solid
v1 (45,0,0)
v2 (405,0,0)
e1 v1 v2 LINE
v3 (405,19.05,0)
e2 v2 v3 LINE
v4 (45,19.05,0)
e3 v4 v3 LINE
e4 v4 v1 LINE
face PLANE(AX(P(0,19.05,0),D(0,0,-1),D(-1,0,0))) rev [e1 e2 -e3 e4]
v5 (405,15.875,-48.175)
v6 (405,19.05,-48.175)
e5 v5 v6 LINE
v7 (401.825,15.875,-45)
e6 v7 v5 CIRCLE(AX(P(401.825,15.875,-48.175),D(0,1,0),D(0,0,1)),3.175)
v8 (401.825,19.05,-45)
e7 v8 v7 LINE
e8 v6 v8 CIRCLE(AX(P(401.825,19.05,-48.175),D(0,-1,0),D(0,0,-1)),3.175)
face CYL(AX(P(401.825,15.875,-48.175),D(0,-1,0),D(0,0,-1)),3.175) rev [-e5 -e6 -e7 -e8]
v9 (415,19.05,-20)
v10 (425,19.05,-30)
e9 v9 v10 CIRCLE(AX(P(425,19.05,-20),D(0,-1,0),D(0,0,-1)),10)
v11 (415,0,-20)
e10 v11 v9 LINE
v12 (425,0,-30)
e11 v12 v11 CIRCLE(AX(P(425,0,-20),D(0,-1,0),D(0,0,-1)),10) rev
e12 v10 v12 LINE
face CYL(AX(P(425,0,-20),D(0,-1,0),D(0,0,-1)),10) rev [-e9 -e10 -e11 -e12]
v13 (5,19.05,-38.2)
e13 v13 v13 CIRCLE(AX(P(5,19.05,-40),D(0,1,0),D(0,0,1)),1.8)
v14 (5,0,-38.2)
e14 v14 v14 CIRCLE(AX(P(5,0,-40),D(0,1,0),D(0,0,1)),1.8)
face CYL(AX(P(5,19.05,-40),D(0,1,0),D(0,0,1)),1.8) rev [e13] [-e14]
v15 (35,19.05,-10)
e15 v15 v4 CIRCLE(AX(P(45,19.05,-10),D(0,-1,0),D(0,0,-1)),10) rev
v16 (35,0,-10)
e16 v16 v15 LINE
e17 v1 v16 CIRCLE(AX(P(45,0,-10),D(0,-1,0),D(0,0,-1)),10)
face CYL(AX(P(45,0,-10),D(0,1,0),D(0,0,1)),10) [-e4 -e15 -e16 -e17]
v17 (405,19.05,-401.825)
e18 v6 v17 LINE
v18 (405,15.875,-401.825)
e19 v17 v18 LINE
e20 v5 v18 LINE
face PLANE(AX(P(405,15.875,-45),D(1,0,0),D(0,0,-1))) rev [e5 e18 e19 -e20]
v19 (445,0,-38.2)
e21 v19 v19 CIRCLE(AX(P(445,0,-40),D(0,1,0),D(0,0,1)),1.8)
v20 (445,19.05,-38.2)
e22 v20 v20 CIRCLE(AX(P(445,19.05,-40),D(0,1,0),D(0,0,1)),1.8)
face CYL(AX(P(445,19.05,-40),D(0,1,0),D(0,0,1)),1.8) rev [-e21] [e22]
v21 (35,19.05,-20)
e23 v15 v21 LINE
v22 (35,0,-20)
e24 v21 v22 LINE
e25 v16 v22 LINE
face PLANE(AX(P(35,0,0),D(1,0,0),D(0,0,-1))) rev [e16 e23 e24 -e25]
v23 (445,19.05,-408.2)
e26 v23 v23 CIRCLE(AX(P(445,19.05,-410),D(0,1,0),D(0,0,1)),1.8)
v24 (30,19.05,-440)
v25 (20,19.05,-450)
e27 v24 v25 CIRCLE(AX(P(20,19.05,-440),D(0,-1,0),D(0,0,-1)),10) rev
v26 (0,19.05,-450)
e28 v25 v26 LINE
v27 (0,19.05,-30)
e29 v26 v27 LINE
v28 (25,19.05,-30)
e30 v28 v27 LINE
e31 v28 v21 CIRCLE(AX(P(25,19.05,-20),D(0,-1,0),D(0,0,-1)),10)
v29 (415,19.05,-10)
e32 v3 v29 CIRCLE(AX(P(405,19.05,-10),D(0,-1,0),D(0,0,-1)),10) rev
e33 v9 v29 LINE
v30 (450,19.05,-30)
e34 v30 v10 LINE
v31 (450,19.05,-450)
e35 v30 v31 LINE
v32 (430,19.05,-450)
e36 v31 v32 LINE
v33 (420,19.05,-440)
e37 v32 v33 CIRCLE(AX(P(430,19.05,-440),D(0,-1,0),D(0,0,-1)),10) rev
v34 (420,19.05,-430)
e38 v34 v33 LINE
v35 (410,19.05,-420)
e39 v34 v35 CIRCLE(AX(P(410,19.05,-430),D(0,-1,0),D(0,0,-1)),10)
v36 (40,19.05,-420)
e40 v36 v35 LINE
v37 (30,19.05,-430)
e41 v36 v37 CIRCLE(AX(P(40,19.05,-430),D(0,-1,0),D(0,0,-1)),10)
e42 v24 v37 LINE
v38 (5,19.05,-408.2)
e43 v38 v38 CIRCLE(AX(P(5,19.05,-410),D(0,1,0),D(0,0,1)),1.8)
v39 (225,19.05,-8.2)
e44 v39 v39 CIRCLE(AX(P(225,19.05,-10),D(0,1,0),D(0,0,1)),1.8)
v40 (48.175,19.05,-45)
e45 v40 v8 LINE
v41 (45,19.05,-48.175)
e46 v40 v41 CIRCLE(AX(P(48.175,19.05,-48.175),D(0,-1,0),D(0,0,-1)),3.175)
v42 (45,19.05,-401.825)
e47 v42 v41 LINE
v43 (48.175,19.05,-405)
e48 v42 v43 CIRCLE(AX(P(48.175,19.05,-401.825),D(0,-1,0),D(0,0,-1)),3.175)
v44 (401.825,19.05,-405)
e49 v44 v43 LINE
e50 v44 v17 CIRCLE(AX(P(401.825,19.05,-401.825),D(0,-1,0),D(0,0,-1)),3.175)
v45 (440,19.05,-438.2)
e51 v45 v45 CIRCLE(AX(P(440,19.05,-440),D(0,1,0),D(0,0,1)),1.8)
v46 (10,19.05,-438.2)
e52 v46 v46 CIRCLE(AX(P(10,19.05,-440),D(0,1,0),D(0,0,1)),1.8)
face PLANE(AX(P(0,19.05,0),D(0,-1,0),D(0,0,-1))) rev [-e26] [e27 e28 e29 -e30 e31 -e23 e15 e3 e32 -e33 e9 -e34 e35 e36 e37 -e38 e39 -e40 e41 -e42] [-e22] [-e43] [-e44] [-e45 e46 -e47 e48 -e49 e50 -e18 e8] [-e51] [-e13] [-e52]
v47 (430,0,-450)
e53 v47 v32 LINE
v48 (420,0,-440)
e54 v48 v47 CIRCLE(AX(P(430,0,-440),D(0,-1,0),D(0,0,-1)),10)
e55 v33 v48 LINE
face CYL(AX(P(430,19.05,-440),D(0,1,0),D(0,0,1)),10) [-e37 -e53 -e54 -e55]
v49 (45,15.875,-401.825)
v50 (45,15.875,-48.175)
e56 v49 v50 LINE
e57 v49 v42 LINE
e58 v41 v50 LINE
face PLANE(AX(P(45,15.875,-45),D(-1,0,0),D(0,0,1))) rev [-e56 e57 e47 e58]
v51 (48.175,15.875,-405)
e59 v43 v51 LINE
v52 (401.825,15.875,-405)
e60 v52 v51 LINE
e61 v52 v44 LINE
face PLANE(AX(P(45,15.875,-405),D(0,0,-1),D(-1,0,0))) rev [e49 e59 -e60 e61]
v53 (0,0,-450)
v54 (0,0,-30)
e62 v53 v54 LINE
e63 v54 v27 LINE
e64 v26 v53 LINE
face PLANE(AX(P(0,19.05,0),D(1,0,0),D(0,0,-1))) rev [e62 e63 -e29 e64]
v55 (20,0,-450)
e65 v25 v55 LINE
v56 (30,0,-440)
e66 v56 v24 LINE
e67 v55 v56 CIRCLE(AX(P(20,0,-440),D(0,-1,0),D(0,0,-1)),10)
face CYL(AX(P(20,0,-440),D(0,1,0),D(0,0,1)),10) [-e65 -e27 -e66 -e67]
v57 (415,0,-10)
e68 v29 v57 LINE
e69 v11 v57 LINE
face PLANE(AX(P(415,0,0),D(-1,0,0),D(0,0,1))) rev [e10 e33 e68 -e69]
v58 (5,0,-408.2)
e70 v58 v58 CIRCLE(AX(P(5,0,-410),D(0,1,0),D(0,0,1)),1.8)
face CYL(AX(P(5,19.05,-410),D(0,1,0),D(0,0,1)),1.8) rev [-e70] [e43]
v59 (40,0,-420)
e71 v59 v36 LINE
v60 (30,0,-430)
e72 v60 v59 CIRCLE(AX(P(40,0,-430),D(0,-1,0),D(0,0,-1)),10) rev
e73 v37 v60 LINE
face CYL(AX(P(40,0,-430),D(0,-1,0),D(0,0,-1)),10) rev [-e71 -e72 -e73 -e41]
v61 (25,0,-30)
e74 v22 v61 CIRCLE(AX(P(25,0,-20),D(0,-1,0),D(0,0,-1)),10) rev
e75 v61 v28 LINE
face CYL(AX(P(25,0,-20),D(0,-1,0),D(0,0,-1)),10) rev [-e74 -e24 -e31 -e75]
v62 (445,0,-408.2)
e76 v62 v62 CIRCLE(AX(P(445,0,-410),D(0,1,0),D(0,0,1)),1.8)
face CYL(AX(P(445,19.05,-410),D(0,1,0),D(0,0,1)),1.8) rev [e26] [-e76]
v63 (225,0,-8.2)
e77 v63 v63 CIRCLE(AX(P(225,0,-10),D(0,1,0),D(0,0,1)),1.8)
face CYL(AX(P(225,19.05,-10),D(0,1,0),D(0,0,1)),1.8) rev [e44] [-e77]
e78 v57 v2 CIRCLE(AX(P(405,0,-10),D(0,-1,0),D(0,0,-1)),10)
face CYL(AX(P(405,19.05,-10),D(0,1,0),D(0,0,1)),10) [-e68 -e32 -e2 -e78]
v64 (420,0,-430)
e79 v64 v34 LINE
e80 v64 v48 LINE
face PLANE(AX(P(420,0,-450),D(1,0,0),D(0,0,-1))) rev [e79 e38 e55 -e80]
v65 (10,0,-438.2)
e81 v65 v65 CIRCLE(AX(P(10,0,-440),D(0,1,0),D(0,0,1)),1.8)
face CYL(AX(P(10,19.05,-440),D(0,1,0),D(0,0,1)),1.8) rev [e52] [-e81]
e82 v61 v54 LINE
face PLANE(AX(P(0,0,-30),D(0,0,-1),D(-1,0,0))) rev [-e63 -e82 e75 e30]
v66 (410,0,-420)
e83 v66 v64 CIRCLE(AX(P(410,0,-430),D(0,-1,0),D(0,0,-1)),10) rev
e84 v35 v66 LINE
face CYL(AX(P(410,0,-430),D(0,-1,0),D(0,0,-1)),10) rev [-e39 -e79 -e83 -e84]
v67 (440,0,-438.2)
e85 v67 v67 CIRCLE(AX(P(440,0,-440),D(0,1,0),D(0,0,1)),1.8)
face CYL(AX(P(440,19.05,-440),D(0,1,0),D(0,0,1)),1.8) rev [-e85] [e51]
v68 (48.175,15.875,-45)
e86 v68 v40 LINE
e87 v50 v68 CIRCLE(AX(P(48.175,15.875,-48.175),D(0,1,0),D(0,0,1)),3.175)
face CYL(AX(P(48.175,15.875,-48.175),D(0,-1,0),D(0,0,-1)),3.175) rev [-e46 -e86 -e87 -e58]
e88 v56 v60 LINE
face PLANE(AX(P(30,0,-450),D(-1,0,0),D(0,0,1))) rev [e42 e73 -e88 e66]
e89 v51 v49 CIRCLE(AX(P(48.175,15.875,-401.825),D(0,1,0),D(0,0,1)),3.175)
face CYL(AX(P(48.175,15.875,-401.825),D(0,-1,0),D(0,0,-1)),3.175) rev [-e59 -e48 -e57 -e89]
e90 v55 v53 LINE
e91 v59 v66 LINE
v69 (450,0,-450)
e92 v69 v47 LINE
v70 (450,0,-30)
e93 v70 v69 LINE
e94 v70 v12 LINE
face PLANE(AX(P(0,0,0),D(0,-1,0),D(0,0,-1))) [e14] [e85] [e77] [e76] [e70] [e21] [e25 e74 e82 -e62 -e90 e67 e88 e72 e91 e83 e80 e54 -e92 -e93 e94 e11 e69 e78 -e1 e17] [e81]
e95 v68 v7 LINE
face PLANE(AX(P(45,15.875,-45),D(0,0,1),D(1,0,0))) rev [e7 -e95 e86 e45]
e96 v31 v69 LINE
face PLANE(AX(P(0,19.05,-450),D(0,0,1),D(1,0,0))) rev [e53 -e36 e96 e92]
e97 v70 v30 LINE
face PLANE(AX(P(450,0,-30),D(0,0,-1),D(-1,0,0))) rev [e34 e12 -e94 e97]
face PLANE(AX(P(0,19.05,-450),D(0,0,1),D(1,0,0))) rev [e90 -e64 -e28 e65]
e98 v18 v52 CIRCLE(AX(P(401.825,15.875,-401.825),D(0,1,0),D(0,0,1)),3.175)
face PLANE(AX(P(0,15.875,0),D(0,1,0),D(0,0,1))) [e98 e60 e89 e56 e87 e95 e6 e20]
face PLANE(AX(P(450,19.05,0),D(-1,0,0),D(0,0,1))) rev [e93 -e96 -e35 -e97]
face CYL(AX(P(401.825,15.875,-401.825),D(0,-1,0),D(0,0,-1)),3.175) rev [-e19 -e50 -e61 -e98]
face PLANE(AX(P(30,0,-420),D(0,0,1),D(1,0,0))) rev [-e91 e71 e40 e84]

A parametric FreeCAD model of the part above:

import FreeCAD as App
import Part
import Sketcher

V = App.Vector


def edges_at(feature, points):
    """Names of the edges that pass closest to the given points."""
    edges = feature.Shape.Edges
    near = lambda p: min(range(len(edges)), key=lambda i: edges[i].distToShape(Part.Vertex(*p))[0])
    return sorted({f"Edge{near(p) + 1}" for p in points})


def add_polygon(sketch, points):
    """Adds a closed chain of lines whose ends are joined by coincident constraints."""
    first, n = sketch.GeometryCount, len(points)
    for a, b in zip(points, points[1:] + points[:1]):
        sketch.addGeometry(Part.LineSegment(App.Vector(*a, 0), App.Vector(*b, 0)), False)
    for i in range(n):
        sketch.addConstraint(Sketcher.Constraint("Coincident", first + i, 2, first + (i + 1) % n, 1))

doc = App.newDocument("Part")
body = doc.addObject("PartDesign::Body", "Body")

# Sketch on XZ plane
sketch1 = doc.addObject("Sketcher::SketchObject", "Sketch")
body.addObject(sketch1)
sketch1.AttachmentSupport = (doc.XZ_Plane, [""])
sketch1.MapMode = "FlatFace"
add_polygon(sketch1, [(0, -450), (0, 0), (450, 0), (450, -450)])  # lines 0-3
sketch1.addConstraint(Sketcher.Constraint("Vertical", 0))
sketch1.addConstraint(Sketcher.Constraint("Horizontal", 1))
sketch1.addConstraint(Sketcher.Constraint("Vertical", 2))
sketch1.addConstraint(Sketcher.Constraint("Horizontal", 3))
sketch1.addConstraint(Sketcher.Constraint("Coincident", 0, 2, -1, 1))
sketch1.addConstraint(Sketcher.Constraint("Equal", 3, 0))
sketch1.addConstraint(Sketcher.Constraint("DistanceX", 1, 1, 1, 2, 450.0))
pad1 = doc.addObject("PartDesign::Pad", "Pad")
body.addObject(pad1)
pad1.Profile = sketch1
pad1.Length = 19.05
pad1.Reversed = True

# Sketch on XZ plane
sketch2 = doc.addObject("Sketcher::SketchObject", "Sketch001")
body.addObject(sketch2)
sketch2.AttachmentSupport = (doc.XZ_Plane, [""])
sketch2.MapMode = "FlatFace"
sketch2.AttachmentOffset = App.Placement(V(0, 0, -19.05), App.Rotation())
add_polygon(sketch2, [(415, -30), (415, 0), (450, 0), (450, -30)])  # lines 0-3
add_polygon(sketch2, [(0, -30), (0, 0), (35, 0), (35, -30)])  # lines 4-7
add_polygon(sketch2, [(30, -450), (30, -420), (420, -420), (420, -450)])  # lines 8-11
sketch2.addConstraint(Sketcher.Constraint("Vertical", 0))
sketch2.addConstraint(Sketcher.Constraint("Horizontal", 1))
sketch2.addConstraint(Sketcher.Constraint("Vertical", 2))
sketch2.addConstraint(Sketcher.Constraint("Horizontal", 3))
sketch2.addConstraint(Sketcher.Constraint("Vertical", 4))
sketch2.addConstraint(Sketcher.Constraint("Horizontal", 5))
sketch2.addConstraint(Sketcher.Constraint("Vertical", 6))
sketch2.addConstraint(Sketcher.Constraint("Horizontal", 7))
sketch2.addConstraint(Sketcher.Constraint("Vertical", 8))
sketch2.addConstraint(Sketcher.Constraint("Horizontal", 9))
sketch2.addConstraint(Sketcher.Constraint("Vertical", 10))
sketch2.addConstraint(Sketcher.Constraint("Horizontal", 11))
sketch2.addConstraint(Sketcher.Constraint("Coincident", 4, 2, -1, 1))
sketch2.addConstraint(Sketcher.Constraint("PointOnObject", 0, 2, -1))
sketch2.addConstraint(Sketcher.Constraint("Horizontal", 3, 2, 6, 2))
sketch2.addConstraint(Sketcher.Constraint("Equal", 3, 5))
sketch2.addConstraint(Sketcher.Constraint("Equal", 6, 8))
sketch2.addConstraint(Sketcher.Constraint("DistanceX", 1, 1, 1, 2, 35.0))
sketch2.addConstraint(Sketcher.Constraint("DistanceX", 9, 1, 9, 2, 390.0))
sketch2.addConstraint(Sketcher.Constraint("DistanceY", 0, 1, 0, 2, 30.0))
sketch2.addConstraint(Sketcher.Constraint("DistanceX", -1, 1, 0, 2, 415.0))
sketch2.addConstraint(Sketcher.Constraint("DistanceX", -1, 1, 8, 2, 30.0))
sketch2.addConstraint(Sketcher.Constraint("DistanceY", 8, 2, -1, 1, 420.0))
pocket1 = doc.addObject("PartDesign::Pocket", "Pocket")
body.addObject(pocket1)
pocket1.Profile = sketch2
pocket1.Type = "ThroughAll"
pocket1.Reversed = True
doc.recompute()

fillet = doc.addObject("PartDesign::Fillet", "Fillet")
body.addObject(fillet)
fillet.Base = (pocket1, edges_at(pocket1, [
    (35, 9.525, -30),
    (35, 9.525, 0),
    (30, 9.525, -420),
    (30, 9.525, -450),
    (420, 9.525, -450),
    (420, 9.525, -420),
    (415, 9.525, 0),
    (415, 9.525, -30),
]))
fillet.Radius = 10

# Sketch on XZ plane
sketch3 = doc.addObject("Sketcher::SketchObject", "Sketch002")
body.addObject(sketch3)
sketch3.AttachmentSupport = (doc.XZ_Plane, [""])
sketch3.MapMode = "FlatFace"
sketch3.AttachmentOffset = App.Placement(V(0, 0, -19.05), App.Rotation())
add_polygon(sketch3, [(45, -405), (45, -45), (405, -45), (405, -405)])  # lines 0-3
sketch3.addConstraint(Sketcher.Constraint("Vertical", 0))
sketch3.addConstraint(Sketcher.Constraint("Horizontal", 1))
sketch3.addConstraint(Sketcher.Constraint("Vertical", 2))
sketch3.addConstraint(Sketcher.Constraint("Horizontal", 3))
sketch3.addConstraint(Sketcher.Constraint("Equal", 3, 0))
sketch3.addConstraint(Sketcher.Constraint("DistanceX", 1, 1, 1, 2, 360.0))
sketch3.addConstraint(Sketcher.Constraint("DistanceX", -1, 1, 0, 2, 45.0))
sketch3.addConstraint(Sketcher.Constraint("DistanceY", 0, 2, -1, 1, 45.0))
pocket2 = doc.addObject("PartDesign::Pocket", "Pocket001")
body.addObject(pocket2)
pocket2.Profile = sketch3
pocket2.Length = 3.175
pocket2.Reversed = True
doc.recompute()

fillet2 = doc.addObject("PartDesign::Fillet", "Fillet001")
body.addObject(fillet2)
fillet2.Base = (pocket2, edges_at(pocket2, [
    (45, 17.462, -405),
    (405, 17.462, -405),
    (405, 17.462, -45),
    (45, 17.462, -45),
]))
fillet2.Radius = 3.175

# Sketch on XZ plane
sketch4 = doc.addObject("Sketcher::SketchObject", "Sketch003")
body.addObject(sketch4)
sketch4.AttachmentSupport = (doc.XZ_Plane, [""])
sketch4.MapMode = "FlatFace"
sketch4.AttachmentOffset = App.Placement(V(0, 0, -19.05), App.Rotation())
sketch4.addGeometry(Part.Circle(V(440, -440, 0), V(0, 0, 1), 1.8), False)
sketch4.addGeometry(Part.Circle(V(10, -440, 0), V(0, 0, 1), 1.8), False)
sketch4.addGeometry(Part.Circle(V(225, -10, 0), V(0, 0, 1), 1.8), False)
sketch4.addConstraint(Sketcher.Constraint("Equal", 0, 1))
sketch4.addConstraint(Sketcher.Constraint("Equal", 1, 2))
sketch4.addConstraint(Sketcher.Constraint("Horizontal", 0, 3, 1, 3))
sketch4.addConstraint(Sketcher.Constraint("Diameter", 0, 3.6))
sketch4.addConstraint(Sketcher.Constraint("DistanceX", -1, 1, 0, 3, 440.0))
sketch4.addConstraint(Sketcher.Constraint("DistanceY", 0, 3, -1, 1, 440.0))
sketch4.addConstraint(Sketcher.Constraint("DistanceX", -1, 1, 1, 3, 10.0))
sketch4.addConstraint(Sketcher.Constraint("DistanceX", -1, 1, 2, 3, 225.0))
sketch4.addConstraint(Sketcher.Constraint("DistanceY", 2, 3, -1, 1, 10.0))
doc.recompute()
hole = doc.addObject("PartDesign::Hole", "Hole")
body.addObject(hole)
hole.Profile = sketch4
hole.ThreadType = "None"
hole.Diameter = 3.6
hole.DepthType = "ThroughAll"
hole.Reversed = True

# Sketch on XZ plane
sketch5 = doc.addObject("Sketcher::SketchObject", "Sketch004")
body.addObject(sketch5)
sketch5.AttachmentSupport = (doc.XZ_Plane, [""])
sketch5.MapMode = "FlatFace"
sketch5.AttachmentOffset = App.Placement(V(0, 0, -19.05), App.Rotation())
sketch5.addGeometry(Part.Circle(V(445, -410, 0), V(0, 0, 1), 1.8), False)
sketch5.addGeometry(Part.Circle(V(5, -410, 0), V(0, 0, 1), 1.8), False)
sketch5.addGeometry(Part.Circle(V(5, -40, 0), V(0, 0, 1), 1.8), False)
sketch5.addGeometry(Part.Circle(V(445, -40, 0), V(0, 0, 1), 1.8), False)
sketch5.addConstraint(Sketcher.Constraint("Equal", 0, 1))
sketch5.addConstraint(Sketcher.Constraint("Equal", 1, 2))
sketch5.addConstraint(Sketcher.Constraint("Equal", 2, 3))
sketch5.addConstraint(Sketcher.Constraint("Horizontal", 0, 3, 1, 3))
sketch5.addConstraint(Sketcher.Constraint("Horizontal", 2, 3, 3, 3))
sketch5.addConstraint(Sketcher.Constraint("Vertical", 1, 3, 2, 3))
sketch5.addConstraint(Sketcher.Constraint("Vertical", 0, 3, 3, 3))
sketch5.addConstraint(Sketcher.Constraint("Diameter", 0, 3.6))
sketch5.addConstraint(Sketcher.Constraint("DistanceX", -1, 1, 0, 3, 445.0))
sketch5.addConstraint(Sketcher.Constraint("DistanceY", 0, 3, -1, 1, 410.0))
sketch5.addConstraint(Sketcher.Constraint("DistanceX", -1, 1, 1, 3, 5.0))
sketch5.addConstraint(Sketcher.Constraint("DistanceY", 2, 3, -1, 1, 40.0))
doc.recompute()
hole2 = doc.addObject("PartDesign::Hole", "Hole001")
body.addObject(hole2)
hole2.Profile = sketch5
hole2.ThreadType = "None"
hole2.Diameter = 3.6
hole2.DepthType = "ThroughAll"
hole2.Reversed = True

doc.recompute()
